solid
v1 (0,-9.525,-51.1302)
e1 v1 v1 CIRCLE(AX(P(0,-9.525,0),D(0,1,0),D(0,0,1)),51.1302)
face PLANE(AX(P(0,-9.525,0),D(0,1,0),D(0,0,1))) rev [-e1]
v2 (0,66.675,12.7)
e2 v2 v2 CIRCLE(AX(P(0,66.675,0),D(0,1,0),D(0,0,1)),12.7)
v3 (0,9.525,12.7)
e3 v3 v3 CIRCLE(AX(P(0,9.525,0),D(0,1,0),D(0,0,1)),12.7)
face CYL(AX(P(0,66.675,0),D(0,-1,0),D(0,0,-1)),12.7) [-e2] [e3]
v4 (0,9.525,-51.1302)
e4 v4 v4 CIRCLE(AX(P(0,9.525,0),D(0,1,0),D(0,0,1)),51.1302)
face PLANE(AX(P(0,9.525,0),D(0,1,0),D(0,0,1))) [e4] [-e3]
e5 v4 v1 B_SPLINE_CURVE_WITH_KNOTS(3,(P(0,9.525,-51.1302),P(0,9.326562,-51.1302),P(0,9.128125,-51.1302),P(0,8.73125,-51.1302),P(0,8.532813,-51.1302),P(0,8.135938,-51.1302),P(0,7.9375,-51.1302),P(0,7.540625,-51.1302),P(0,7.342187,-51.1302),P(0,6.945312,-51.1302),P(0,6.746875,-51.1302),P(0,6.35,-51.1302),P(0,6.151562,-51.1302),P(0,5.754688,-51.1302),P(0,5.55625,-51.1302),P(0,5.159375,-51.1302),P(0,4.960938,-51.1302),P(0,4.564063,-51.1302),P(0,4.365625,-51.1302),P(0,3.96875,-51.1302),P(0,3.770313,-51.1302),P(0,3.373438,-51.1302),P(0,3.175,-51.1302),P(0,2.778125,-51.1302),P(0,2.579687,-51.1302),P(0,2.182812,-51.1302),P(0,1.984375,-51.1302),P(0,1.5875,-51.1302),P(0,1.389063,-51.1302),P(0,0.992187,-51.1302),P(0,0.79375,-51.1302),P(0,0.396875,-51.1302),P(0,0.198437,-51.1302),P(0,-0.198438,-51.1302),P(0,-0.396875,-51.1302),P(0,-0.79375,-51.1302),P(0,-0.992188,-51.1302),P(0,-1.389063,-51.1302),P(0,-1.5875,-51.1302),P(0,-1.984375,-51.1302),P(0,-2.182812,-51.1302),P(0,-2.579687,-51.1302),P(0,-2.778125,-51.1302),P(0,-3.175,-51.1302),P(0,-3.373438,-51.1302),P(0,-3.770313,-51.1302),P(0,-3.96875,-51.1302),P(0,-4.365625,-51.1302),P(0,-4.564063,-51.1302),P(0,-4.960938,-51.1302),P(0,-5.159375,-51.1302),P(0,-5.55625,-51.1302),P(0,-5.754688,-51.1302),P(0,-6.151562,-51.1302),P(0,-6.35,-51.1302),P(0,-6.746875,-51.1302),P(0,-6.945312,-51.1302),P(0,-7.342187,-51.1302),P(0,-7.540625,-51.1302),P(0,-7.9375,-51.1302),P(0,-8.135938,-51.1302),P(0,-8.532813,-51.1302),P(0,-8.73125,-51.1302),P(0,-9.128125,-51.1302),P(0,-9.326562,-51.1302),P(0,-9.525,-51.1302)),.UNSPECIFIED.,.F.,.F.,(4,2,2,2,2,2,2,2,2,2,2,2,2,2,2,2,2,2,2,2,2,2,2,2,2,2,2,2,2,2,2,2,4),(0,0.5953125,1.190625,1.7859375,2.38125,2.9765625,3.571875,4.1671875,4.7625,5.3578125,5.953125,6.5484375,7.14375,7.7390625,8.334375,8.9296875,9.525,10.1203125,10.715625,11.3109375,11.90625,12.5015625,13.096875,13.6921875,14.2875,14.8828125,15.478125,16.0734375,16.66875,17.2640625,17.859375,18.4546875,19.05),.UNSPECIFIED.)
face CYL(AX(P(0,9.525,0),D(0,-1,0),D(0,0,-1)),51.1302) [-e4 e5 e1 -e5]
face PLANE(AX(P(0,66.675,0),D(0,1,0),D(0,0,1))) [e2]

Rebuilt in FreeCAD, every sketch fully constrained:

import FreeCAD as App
import Part
import Sketcher

V = App.Vector
Q = App.Units.Quantity

doc = App.newDocument("Part")
body = doc.addObject("PartDesign::Body", "Body")

# Sketch on XZ plane
sketch1 = doc.addObject("Sketcher::SketchObject", "Sketch")
body.addObject(sketch1)
sketch1.AttachmentSupport = (doc.XZ_Plane, [""])
sketch1.MapMode = "FlatFace"
sketch1.addGeometry(Part.Circle(V(0, 0, 0), V(0, 0, 1), 51), False)
sketch1.addConstraint([
    Sketcher.Constraint("Coincident", 0, 3, -1, 1),
    Sketcher.Constraint("Diameter", 0, Q("4.026 in")),
])
pad1 = doc.addObject("PartDesign::Pad", "Pad")
body.addObject(pad1)
pad1.Profile = sketch1
pad1.Length = Q("0.75 in")
pad1.Midplane = True

# Sketch on XZ plane
sketch2 = doc.addObject("Sketcher::SketchObject", "Sketch001")
body.addObject(sketch2)
sketch2.AttachmentSupport = (doc.XZ_Plane, [""])
sketch2.MapMode = "FlatFace"
sketch2.AttachmentOffset = App.Placement(V(0, 0, -0.375 * 25.4), App.Rotation())
sketch2.addGeometry(Part.Circle(V(0, 0, 0), V(0, 0, 1), 13), False)
sketch2.addConstraint([
    Sketcher.Constraint("Coincident", 0, 3, -1, 1),
    Sketcher.Constraint("Diameter", 0, Q("1 in")),
])
pad2 = doc.addObject("PartDesign::Pad", "Pad001")
body.addObject(pad2)
pad2.Profile = sketch2
pad2.Length = Q("2.25 in")
pad2.Reversed = True

doc.recompute()
